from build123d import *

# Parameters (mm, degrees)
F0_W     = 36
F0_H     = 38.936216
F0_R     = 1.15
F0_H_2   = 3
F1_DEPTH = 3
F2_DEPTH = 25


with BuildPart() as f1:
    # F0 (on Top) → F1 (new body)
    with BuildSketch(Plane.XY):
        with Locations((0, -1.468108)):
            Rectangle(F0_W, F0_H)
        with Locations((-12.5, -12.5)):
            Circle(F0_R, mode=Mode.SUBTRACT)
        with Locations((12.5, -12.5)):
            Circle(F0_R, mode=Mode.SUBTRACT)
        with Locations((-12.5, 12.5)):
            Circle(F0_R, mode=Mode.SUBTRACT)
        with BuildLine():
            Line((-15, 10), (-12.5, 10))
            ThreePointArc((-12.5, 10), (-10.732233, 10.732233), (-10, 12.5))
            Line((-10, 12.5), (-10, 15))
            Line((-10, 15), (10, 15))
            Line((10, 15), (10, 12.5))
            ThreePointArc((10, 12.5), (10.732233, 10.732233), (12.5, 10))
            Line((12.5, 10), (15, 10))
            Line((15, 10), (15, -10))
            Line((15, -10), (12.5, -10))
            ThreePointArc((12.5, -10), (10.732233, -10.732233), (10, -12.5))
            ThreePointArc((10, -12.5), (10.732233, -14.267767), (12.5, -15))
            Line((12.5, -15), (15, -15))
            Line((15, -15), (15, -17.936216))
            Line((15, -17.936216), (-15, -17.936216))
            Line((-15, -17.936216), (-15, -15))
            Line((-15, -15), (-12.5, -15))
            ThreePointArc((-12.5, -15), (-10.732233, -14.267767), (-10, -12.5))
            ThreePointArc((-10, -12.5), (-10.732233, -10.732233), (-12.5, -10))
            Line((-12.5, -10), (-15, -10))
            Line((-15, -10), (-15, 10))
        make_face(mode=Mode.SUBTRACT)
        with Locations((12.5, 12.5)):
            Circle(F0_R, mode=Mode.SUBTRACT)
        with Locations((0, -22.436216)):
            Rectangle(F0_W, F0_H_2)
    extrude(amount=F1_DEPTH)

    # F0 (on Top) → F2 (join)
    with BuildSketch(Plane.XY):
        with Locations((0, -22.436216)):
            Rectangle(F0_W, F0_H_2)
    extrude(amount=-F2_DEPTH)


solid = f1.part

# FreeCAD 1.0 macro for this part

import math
import FreeCAD as App
import Part
import Sketcher

V = App.Vector
Q = App.Units.Quantity

doc = App.newDocument("Part")
params = doc.addObject("Spreadsheet::Sheet", "Params")
for row, (alias, value) in enumerate([
    ("sketch1_diameter", "2.3 mm"),
    ("sketch1_radius", "2.5 mm"),
    ("sketch1_width", "36 mm"),
    ("sketch1_width2", "20 mm"),
    ("sketch1_width3", "30 mm"),
    ("pad1_length", "3 mm"),
    ("sketch2_width", "36 mm"),
    ("sketch2_height", "3 mm"),
    ("pad2_length", "25 mm"),
], start=1):
    params.set(f"A{row}", alias)
    params.set(f"B{row}", "=" + value)
    params.setAlias(f"B{row}", alias)

body = doc.addObject("PartDesign::Body", "Body")

# Sketch on XY plane
sketch1 = body.newObject("Sketcher::SketchObject", "Sketch")
sketch1.AttachmentSupport = (doc.getObject("XY_Plane"), [""])
sketch1.MapMode = "FlatFace"
sketch1.addGeometry([
    Part.LineSegment(V(-18, 18, 0), V(-18, -23.9, 0)),  # 0
    Part.LineSegment(V(-18, -23.9, 0), V(18, -23.9, 0)),  # 1
    Part.LineSegment(V(18, -23.9, 0), V(18, 18, 0)),  # 2
    Part.LineSegment(V(18, 18, 0), V(-18, 18, 0)),  # 3
    Part.Circle(V(-12.5, -12.5, 0), V(0, 0, 1), 1.1),  # 4
    Part.Circle(V(12.5, -12.5, 0), V(0, 0, 1), 1.1),  # 5
    Part.Circle(V(-12.5, 12.5, 0), V(0, 0, 1), 1.1),  # 6
    Part.LineSegment(V(-15, -10, 0), V(-15, 10, 0)),  # 7
    Part.LineSegment(V(-15, 10, 0), V(-12.5, 10, 0)),  # 8
    Part.ArcOfCircle(Part.Circle(V(-12.5, 12.5, 0), V(0, 0, 1), 2.5), math.radians(-90), math.radians(0)),  # 9
    Part.LineSegment(V(-10, 12.5, 0), V(-10, 15, 0)),  # 10
    Part.LineSegment(V(-10, 15, 0), V(10, 15, 0)),  # 11
    Part.LineSegment(V(10, 15, 0), V(10, 12.5, 0)),  # 12
    Part.ArcOfCircle(Part.Circle(V(12.5, 12.5, 0), V(0, 0, 1), 2.5), math.radians(180), math.radians(270)),  # 13
    Part.LineSegment(V(12.5, 10, 0), V(15, 10, 0)),  # 14
    Part.LineSegment(V(15, 10, 0), V(15, -10, 0)),  # 15
    Part.LineSegment(V(15, -10, 0), V(12.5, -10, 0)),  # 16
    Part.ArcOfCircle(Part.Circle(V(12.5, -12.5, 0), V(0, 0, 1), 2.5), math.radians(90), math.radians(180)),  # 17
    Part.ArcOfCircle(Part.Circle(V(12.5, -12.5, 0), V(0, 0, 1), 2.5), math.radians(180), math.radians(270)),  # 18
    Part.LineSegment(V(12.5, -15, 0), V(15, -15, 0)),  # 19
    Part.LineSegment(V(15, -15, 0), V(15, -17.9, 0)),  # 20
    Part.LineSegment(V(15, -17.9, 0), V(-15, -17.9, 0)),  # 21
    Part.LineSegment(V(-15, -17.9, 0), V(-15, -15, 0)),  # 22
    Part.LineSegment(V(-15, -15, 0), V(-12.5, -15, 0)),  # 23
    Part.ArcOfCircle(Part.Circle(V(-12.5, -12.5, 0), V(0, 0, 1), 2.5), math.radians(-90), math.radians(0)),  # 24
    Part.ArcOfCircle(Part.Circle(V(-12.5, -12.5, 0), V(0, 0, 1), 2.5), math.radians(0), math.radians(90)),  # 25
    Part.LineSegment(V(-12.5, -10, 0), V(-15, -10, 0)),  # 26
    Part.Circle(V(12.5, 12.5, 0), V(0, 0, 1), 1.1),  # 27
], False)
sketch1.addConstraint([
    Sketcher.Constraint("Coincident", 0, 2, 1, 1),
    Sketcher.Constraint("Coincident", 1, 2, 2, 1),
    Sketcher.Constraint("Coincident", 2, 2, 3, 1),
    Sketcher.Constraint("Coincident", 3, 2, 0, 1),
    Sketcher.Constraint("Coincident", 7, 2, 8, 1),
    Sketcher.Constraint("Tangent", 8, 2, 9, 1),
    Sketcher.Constraint("Tangent", 9, 2, 10, 1),
    Sketcher.Constraint("Coincident", 10, 2, 11, 1),
    Sketcher.Constraint("Coincident", 11, 2, 12, 1),
    Sketcher.Constraint("Tangent", 12, 2, 13, 1),
    Sketcher.Constraint("Tangent", 13, 2, 14, 1),
    Sketcher.Constraint("Coincident", 14, 2, 15, 1),
    Sketcher.Constraint("Coincident", 15, 2, 16, 1),
    Sketcher.Constraint("Tangent", 16, 2, 17, 1),
    Sketcher.Constraint("Tangent", 17, 2, 18, 1),
    Sketcher.Constraint("Tangent", 18, 2, 19, 1),
    Sketcher.Constraint("Coincident", 19, 2, 20, 1),
    Sketcher.Constraint("Coincident", 20, 2, 21, 1),
    Sketcher.Constraint("Coincident", 21, 2, 22, 1),
    Sketcher.Constraint("Coincident", 22, 2, 23, 1),
    Sketcher.Constraint("Tangent", 23, 2, 24, 1),
    Sketcher.Constraint("Tangent", 24, 2, 25, 1),
    Sketcher.Constraint("Tangent", 25, 2, 26, 1),
    Sketcher.Constraint("Coincident", 26, 2, 7, 1),
    Sketcher.Constraint("Vertical", 0),
    Sketcher.Constraint("Horizontal", 1),
    Sketcher.Constraint("Vertical", 2),
    Sketcher.Constraint("Horizontal", 3),
    Sketcher.Constraint("Vertical", 7),
    Sketcher.Constraint("Horizontal", 8),
    Sketcher.Constraint("Vertical", 10),
    Sketcher.Constraint("Horizontal", 11),
    Sketcher.Constraint("Vertical", 12),
    Sketcher.Constraint("Horizontal", 14),
    Sketcher.Constraint("Vertical", 15),
    Sketcher.Constraint("Horizontal", 16),
    Sketcher.Constraint("Horizontal", 19),
    Sketcher.Constraint("Vertical", 20),
    Sketcher.Constraint("Horizontal", 21),
    Sketcher.Constraint("Vertical", 22),
    Sketcher.Constraint("Horizontal", 23),
    Sketcher.Constraint("Horizontal", 26),
    Sketcher.Constraint("Coincident", 9, 3, 6, 3),
    Sketcher.Constraint("Coincident", 17, 3, 5, 3),
    Sketcher.Constraint("Coincident", 24, 3, 4, 3),
    Sketcher.Constraint("Coincident", 27, 3, 13, 3),
    Sketcher.Constraint("Equal", 4, 5),
    Sketcher.Constraint("Equal", 5, 6),
    Sketcher.Constraint("Equal", 9, 13),
    Sketcher.Constraint("Equal", 13, 17),
    Sketcher.Constraint("Equal", 17, 18),
    Sketcher.Constraint("Equal", 18, 24),
    Sketcher.Constraint("Equal", 24, 25),
    Sketcher.Constraint("Equal", 6, 27),
    Sketcher.Constraint("Symmetric", 5, 3, 6, 3, -1, 1),
    Sketcher.Constraint("Symmetric", 4, 3, 13, 3, -1, 1),
    Sketcher.Constraint("Symmetric", 4, 3, 5, 3, -2),
    Sketcher.Constraint("Horizontal", 25, 3, 17, 2),
    Sketcher.Constraint("Horizontal", 17, 2, 24, 2),
    Sketcher.Constraint("Vertical", 15, 2, 19, 2),
    Sketcher.Constraint("Vertical", 7, 2, 21, 2),
    Sketcher.Constraint("Equal", 8, 14),
    Sketcher.Constraint("Equal", 11, 7),
    Sketcher.Constraint("Equal", 26, 10),
    Sketcher.Constraint("Diameter", 4, Q("2.3 mm")),
    Sketcher.Constraint("Radius", 9, Q("2.5 mm")),
    Sketcher.Constraint("DistanceX", 1, 1, 1, 2, Q("36 mm")),
    Sketcher.Constraint("DistanceX", 11, 1, 11, 2, Q("20 mm")),
    Sketcher.Constraint("DistanceX", 21, 2, 21, 1, Q("30 mm")),
    Sketcher.Constraint("DistanceX", 0, 2, -1, 1, Q("18 mm")),
    Sketcher.Constraint("DistanceY", -1, 1, 2, 2, Q("18 mm")),
    Sketcher.Constraint("DistanceY", 0, 2, 21, 2, Q("6 mm")),
    Sketcher.Constraint("DistanceY", 0, 2, 0, 1, Q("41.936216 mm")),
])
sketch1.setExpression("Constraints[64]", "Params.sketch1_diameter")
sketch1.setExpression("Constraints[65]", "Params.sketch1_radius")
sketch1.setExpression("Constraints[66]", "Params.sketch1_width")
sketch1.setExpression("Constraints[67]", "Params.sketch1_width2")
sketch1.setExpression("Constraints[68]", "Params.sketch1_width3")
pad1 = body.newObject("PartDesign::Pad", "Pad")
pad1.Profile = sketch1
pad1.setExpression("Length", "Params.pad1_length")

# Sketch on XY plane
sketch2 = body.newObject("Sketcher::SketchObject", "Sketch001")
sketch2.AttachmentSupport = (doc.getObject("XY_Plane"), [""])
sketch2.MapMode = "FlatFace"
sketch2.addGeometry([
    Part.LineSegment(V(-18, -20.9, 0), V(-18, -23.9, 0)),
    Part.LineSegment(V(-18, -23.9, 0), V(18, -23.9, 0)),
    Part.LineSegment(V(18, -23.9, 0), V(18, -20.9, 0)),
    Part.LineSegment(V(18, -20.9, 0), V(-18, -20.9, 0)),
], False)
sketch2.addConstraint([
    Sketcher.Constraint("Coincident", 0, 2, 1, 1),
    Sketcher.Constraint("Coincident", 1, 2, 2, 1),
    Sketcher.Constraint("Coincident", 2, 2, 3, 1),
    Sketcher.Constraint("Coincident", 3, 2, 0, 1),
    Sketcher.Constraint("Vertical", 0),
    Sketcher.Constraint("Horizontal", 1),
    Sketcher.Constraint("Vertical", 2),
    Sketcher.Constraint("Horizontal", 3),
    Sketcher.Constraint("DistanceX", 1, 1, 1, 2, Q("36 mm")),
    Sketcher.Constraint("DistanceY", 0, 2, 0, 1, Q("3 mm")),
    Sketcher.Constraint("DistanceX", 0, 2, -1, 1, Q("18 mm")),
    Sketcher.Constraint("DistanceY", 0, 2, -1, 1, Q("23.936216 mm")),
])
sketch2.setExpression("Constraints[8]", "Params.sketch2_width")
sketch2.setExpression("Constraints[9]", "Params.sketch2_height")
pad2 = body.newObject("PartDesign::Pad", "Pad001")
pad2.Profile = sketch2
pad2.setExpression("Length", "Params.pad2_length")
pad2.Reversed = True

doc.recompute()
